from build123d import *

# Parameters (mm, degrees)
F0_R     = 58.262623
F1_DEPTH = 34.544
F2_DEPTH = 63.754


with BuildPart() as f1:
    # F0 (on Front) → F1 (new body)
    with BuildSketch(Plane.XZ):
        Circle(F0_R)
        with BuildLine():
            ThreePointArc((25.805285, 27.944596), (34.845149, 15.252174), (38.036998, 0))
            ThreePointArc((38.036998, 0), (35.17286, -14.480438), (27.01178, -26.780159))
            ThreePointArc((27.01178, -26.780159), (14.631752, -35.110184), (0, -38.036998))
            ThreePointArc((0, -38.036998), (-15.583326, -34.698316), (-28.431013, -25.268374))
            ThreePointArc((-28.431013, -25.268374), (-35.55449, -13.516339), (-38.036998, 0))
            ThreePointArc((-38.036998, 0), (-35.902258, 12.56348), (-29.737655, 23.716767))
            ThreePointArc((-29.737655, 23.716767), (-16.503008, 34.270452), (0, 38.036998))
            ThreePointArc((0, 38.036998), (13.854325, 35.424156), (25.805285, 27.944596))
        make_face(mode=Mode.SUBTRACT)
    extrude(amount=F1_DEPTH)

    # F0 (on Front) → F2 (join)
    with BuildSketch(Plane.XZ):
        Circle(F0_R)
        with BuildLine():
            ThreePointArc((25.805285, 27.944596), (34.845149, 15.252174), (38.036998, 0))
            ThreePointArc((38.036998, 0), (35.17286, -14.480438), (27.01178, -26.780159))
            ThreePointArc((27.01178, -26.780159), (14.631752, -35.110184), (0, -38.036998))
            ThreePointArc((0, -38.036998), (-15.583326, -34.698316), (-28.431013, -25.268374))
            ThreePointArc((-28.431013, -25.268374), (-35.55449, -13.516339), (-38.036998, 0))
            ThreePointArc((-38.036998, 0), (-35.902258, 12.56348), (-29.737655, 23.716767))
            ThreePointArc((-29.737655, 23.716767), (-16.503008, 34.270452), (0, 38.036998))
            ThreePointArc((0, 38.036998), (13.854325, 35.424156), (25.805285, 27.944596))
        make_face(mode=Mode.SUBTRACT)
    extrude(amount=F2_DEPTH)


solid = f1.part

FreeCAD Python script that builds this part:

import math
import FreeCAD as App
import Part
import Sketcher
from FreeCAD import Vector

doc = App.newDocument("Part")
params = doc.addObject("Spreadsheet::Sheet", "Params")
for row, (alias, value) in enumerate([
    ("pad1_length", "1.36 in"),
    ("pad2_length", "2.51 in"),
], start=1):
    params.set(f"A{row}", alias)
    params.set(f"B{row}", "=" + value)
    params.setAlias(f"B{row}", alias)

body = doc.addObject("PartDesign::Body", "Body")

# Sketch on XZ plane
sketch1 = body.newObject("Sketcher::SketchObject", "Sketch")
sketch1.AttachmentSupport = (doc.getObject("XZ_Plane"), [""])
sketch1.MapMode = "FlatFace"
sketch1.addGeometry([
    Part.Circle(Vector(0, 0, 0), Vector(0, 0, 1), 58),  # 0
    Part.ArcOfCircle(Part.Circle(Vector(0, 0, 0), Vector(0, 0, 1), 38), math.radians(47), math.radians(90)),  # 1
    Part.ArcOfCircle(Part.Circle(Vector(0, 0, 0), Vector(0, 0, 1), 38), math.radians(0), math.radians(47)),  # 2
    Part.ArcOfCircle(Part.Circle(Vector(0, 0, 0), Vector(0, 0, 1), 38), math.radians(-45), math.radians(0)),  # 3
    Part.ArcOfCircle(Part.Circle(Vector(0, 0, 0), Vector(0, 0, 1), 38), math.radians(-90), math.radians(-45)),  # 4
    Part.ArcOfCircle(Part.Circle(Vector(0, 0, 0), Vector(0, 0, 1), 38), math.radians(-138), math.radians(-90)),  # 5
    Part.ArcOfCircle(Part.Circle(Vector(0, 0, 0), Vector(0, 0, 1), 38), math.radians(-180), math.radians(-138)),  # 6
    Part.ArcOfCircle(Part.Circle(Vector(0, 0, 0), Vector(0, 0, 1), 38), math.radians(141), math.radians(180)),  # 7
    Part.ArcOfCircle(Part.Circle(Vector(0, 0, 0), Vector(0, 0, 1), 38), math.radians(90), math.radians(141)),  # 8
], False)
sketch1.addConstraint([
    Sketcher.Constraint("Tangent", 1, 1, 2, 2),
    Sketcher.Constraint("Tangent", 2, 1, 3, 2),
    Sketcher.Constraint("Tangent", 3, 1, 4, 2),
    Sketcher.Constraint("Tangent", 4, 1, 5, 2),
    Sketcher.Constraint("Tangent", 5, 1, 6, 2),
    Sketcher.Constraint("Tangent", 6, 1, 7, 2),
    Sketcher.Constraint("Tangent", 7, 1, 8, 2),
    Sketcher.Constraint("Tangent", 8, 1, 1, 2),
    Sketcher.Constraint("Coincident", 0, 3, -1, 1),
    Sketcher.Constraint("Coincident", 1, 3, -1, 1),
    Sketcher.Constraint("Coincident", 3, 3, -1, 1),
    Sketcher.Constraint("Coincident", 5, 3, -1, 1),
    Sketcher.Constraint("Equal", 1, 6),
    Sketcher.Constraint("PointOnObject", 2, 1, -1),
    Sketcher.Constraint("PointOnObject", 4, 1, -2),
    Sketcher.Constraint("PointOnObject", 6, 1, -1),
    Sketcher.Constraint("PointOnObject", 8, 1, -2),
    Sketcher.Constraint("Radius", 4, 38.036999),
    Sketcher.Constraint("Diameter", 0, 116.525246),
    Sketcher.Constraint("DistanceY", 7, 3, 1, 1, 27.944599),
    Sketcher.Constraint("DistanceX", -1, 1, 3, 1, 27.01178),
    Sketcher.Constraint("DistanceX", 5, 1, 1, 3, 28.431009),
    Sketcher.Constraint("DistanceX", 7, 1, 3, 3, 29.73765),
])
pad1 = body.newObject("PartDesign::Pad", "Pad")
pad1.Profile = sketch1
pad1.setExpression("Length", "Params.pad1_length")

# Sketch on XZ plane
sketch2 = body.newObject("Sketcher::SketchObject", "Sketch001")
sketch2.AttachmentSupport = (doc.getObject("XZ_Plane"), [""])
sketch2.MapMode = "FlatFace"
sketch2.addGeometry([
    Part.Circle(Vector(0, 0, 0), Vector(0, 0, 1), 58),  # 0
    Part.ArcOfCircle(Part.Circle(Vector(0, 0, 0), Vector(0, 0, 1), 38), math.radians(47), math.radians(90)),  # 1
    Part.ArcOfCircle(Part.Circle(Vector(0, 0, 0), Vector(0, 0, 1), 38), math.radians(0), math.radians(47)),  # 2
    Part.ArcOfCircle(Part.Circle(Vector(0, 0, 0), Vector(0, 0, 1), 38), math.radians(-45), math.radians(0)),  # 3
    Part.ArcOfCircle(Part.Circle(Vector(0, 0, 0), Vector(0, 0, 1), 38), math.radians(-90), math.radians(-45)),  # 4
    Part.ArcOfCircle(Part.Circle(Vector(0, 0, 0), Vector(0, 0, 1), 38), math.radians(-138), math.radians(-90)),  # 5
    Part.ArcOfCircle(Part.Circle(Vector(0, 0, 0), Vector(0, 0, 1), 38), math.radians(-180), math.radians(-138)),  # 6
    Part.ArcOfCircle(Part.Circle(Vector(0, 0, 0), Vector(0, 0, 1), 38), math.radians(141), math.radians(180)),  # 7
    Part.ArcOfCircle(Part.Circle(Vector(0, 0, 0), Vector(0, 0, 1), 38), math.radians(90), math.radians(141)),  # 8
], False)
sketch2.addConstraint([
    Sketcher.Constraint("Tangent", 1, 1, 2, 2),
    Sketcher.Constraint("Tangent", 2, 1, 3, 2),
    Sketcher.Constraint("Tangent", 3, 1, 4, 2),
    Sketcher.Constraint("Tangent", 4, 1, 5, 2),
    Sketcher.Constraint("Tangent", 5, 1, 6, 2),
    Sketcher.Constraint("Tangent", 6, 1, 7, 2),
    Sketcher.Constraint("Tangent", 7, 1, 8, 2),
    Sketcher.Constraint("Tangent", 8, 1, 1, 2),
    Sketcher.Constraint("Coincident", 0, 3, -1, 1),
    Sketcher.Constraint("Coincident", 1, 3, -1, 1),
    Sketcher.Constraint("Coincident", 3, 3, -1, 1),
    Sketcher.Constraint("Coincident", 5, 3, -1, 1),
    Sketcher.Constraint("Equal", 1, 6),
    Sketcher.Constraint("PointOnObject", 2, 1, -1),
    Sketcher.Constraint("PointOnObject", 4, 1, -2),
    Sketcher.Constraint("PointOnObject", 6, 1, -1),
    Sketcher.Constraint("PointOnObject", 8, 1, -2),
    Sketcher.Constraint("Radius", 4, 38.036999),
    Sketcher.Constraint("Diameter", 0, 116.525246),
    Sketcher.Constraint("DistanceY", 7, 3, 1, 1, 27.944599),
    Sketcher.Constraint("DistanceX", -1, 1, 3, 1, 27.01178),
    Sketcher.Constraint("DistanceX", 5, 1, 1, 3, 28.431009),
    Sketcher.Constraint("DistanceX", 7, 1, 3, 3, 29.73765),
])
pad2 = body.newObject("PartDesign::Pad", "Pad001")
pad2.Profile = sketch2
pad2.setExpression("Length", "Params.pad2_length")

doc.recompute()
